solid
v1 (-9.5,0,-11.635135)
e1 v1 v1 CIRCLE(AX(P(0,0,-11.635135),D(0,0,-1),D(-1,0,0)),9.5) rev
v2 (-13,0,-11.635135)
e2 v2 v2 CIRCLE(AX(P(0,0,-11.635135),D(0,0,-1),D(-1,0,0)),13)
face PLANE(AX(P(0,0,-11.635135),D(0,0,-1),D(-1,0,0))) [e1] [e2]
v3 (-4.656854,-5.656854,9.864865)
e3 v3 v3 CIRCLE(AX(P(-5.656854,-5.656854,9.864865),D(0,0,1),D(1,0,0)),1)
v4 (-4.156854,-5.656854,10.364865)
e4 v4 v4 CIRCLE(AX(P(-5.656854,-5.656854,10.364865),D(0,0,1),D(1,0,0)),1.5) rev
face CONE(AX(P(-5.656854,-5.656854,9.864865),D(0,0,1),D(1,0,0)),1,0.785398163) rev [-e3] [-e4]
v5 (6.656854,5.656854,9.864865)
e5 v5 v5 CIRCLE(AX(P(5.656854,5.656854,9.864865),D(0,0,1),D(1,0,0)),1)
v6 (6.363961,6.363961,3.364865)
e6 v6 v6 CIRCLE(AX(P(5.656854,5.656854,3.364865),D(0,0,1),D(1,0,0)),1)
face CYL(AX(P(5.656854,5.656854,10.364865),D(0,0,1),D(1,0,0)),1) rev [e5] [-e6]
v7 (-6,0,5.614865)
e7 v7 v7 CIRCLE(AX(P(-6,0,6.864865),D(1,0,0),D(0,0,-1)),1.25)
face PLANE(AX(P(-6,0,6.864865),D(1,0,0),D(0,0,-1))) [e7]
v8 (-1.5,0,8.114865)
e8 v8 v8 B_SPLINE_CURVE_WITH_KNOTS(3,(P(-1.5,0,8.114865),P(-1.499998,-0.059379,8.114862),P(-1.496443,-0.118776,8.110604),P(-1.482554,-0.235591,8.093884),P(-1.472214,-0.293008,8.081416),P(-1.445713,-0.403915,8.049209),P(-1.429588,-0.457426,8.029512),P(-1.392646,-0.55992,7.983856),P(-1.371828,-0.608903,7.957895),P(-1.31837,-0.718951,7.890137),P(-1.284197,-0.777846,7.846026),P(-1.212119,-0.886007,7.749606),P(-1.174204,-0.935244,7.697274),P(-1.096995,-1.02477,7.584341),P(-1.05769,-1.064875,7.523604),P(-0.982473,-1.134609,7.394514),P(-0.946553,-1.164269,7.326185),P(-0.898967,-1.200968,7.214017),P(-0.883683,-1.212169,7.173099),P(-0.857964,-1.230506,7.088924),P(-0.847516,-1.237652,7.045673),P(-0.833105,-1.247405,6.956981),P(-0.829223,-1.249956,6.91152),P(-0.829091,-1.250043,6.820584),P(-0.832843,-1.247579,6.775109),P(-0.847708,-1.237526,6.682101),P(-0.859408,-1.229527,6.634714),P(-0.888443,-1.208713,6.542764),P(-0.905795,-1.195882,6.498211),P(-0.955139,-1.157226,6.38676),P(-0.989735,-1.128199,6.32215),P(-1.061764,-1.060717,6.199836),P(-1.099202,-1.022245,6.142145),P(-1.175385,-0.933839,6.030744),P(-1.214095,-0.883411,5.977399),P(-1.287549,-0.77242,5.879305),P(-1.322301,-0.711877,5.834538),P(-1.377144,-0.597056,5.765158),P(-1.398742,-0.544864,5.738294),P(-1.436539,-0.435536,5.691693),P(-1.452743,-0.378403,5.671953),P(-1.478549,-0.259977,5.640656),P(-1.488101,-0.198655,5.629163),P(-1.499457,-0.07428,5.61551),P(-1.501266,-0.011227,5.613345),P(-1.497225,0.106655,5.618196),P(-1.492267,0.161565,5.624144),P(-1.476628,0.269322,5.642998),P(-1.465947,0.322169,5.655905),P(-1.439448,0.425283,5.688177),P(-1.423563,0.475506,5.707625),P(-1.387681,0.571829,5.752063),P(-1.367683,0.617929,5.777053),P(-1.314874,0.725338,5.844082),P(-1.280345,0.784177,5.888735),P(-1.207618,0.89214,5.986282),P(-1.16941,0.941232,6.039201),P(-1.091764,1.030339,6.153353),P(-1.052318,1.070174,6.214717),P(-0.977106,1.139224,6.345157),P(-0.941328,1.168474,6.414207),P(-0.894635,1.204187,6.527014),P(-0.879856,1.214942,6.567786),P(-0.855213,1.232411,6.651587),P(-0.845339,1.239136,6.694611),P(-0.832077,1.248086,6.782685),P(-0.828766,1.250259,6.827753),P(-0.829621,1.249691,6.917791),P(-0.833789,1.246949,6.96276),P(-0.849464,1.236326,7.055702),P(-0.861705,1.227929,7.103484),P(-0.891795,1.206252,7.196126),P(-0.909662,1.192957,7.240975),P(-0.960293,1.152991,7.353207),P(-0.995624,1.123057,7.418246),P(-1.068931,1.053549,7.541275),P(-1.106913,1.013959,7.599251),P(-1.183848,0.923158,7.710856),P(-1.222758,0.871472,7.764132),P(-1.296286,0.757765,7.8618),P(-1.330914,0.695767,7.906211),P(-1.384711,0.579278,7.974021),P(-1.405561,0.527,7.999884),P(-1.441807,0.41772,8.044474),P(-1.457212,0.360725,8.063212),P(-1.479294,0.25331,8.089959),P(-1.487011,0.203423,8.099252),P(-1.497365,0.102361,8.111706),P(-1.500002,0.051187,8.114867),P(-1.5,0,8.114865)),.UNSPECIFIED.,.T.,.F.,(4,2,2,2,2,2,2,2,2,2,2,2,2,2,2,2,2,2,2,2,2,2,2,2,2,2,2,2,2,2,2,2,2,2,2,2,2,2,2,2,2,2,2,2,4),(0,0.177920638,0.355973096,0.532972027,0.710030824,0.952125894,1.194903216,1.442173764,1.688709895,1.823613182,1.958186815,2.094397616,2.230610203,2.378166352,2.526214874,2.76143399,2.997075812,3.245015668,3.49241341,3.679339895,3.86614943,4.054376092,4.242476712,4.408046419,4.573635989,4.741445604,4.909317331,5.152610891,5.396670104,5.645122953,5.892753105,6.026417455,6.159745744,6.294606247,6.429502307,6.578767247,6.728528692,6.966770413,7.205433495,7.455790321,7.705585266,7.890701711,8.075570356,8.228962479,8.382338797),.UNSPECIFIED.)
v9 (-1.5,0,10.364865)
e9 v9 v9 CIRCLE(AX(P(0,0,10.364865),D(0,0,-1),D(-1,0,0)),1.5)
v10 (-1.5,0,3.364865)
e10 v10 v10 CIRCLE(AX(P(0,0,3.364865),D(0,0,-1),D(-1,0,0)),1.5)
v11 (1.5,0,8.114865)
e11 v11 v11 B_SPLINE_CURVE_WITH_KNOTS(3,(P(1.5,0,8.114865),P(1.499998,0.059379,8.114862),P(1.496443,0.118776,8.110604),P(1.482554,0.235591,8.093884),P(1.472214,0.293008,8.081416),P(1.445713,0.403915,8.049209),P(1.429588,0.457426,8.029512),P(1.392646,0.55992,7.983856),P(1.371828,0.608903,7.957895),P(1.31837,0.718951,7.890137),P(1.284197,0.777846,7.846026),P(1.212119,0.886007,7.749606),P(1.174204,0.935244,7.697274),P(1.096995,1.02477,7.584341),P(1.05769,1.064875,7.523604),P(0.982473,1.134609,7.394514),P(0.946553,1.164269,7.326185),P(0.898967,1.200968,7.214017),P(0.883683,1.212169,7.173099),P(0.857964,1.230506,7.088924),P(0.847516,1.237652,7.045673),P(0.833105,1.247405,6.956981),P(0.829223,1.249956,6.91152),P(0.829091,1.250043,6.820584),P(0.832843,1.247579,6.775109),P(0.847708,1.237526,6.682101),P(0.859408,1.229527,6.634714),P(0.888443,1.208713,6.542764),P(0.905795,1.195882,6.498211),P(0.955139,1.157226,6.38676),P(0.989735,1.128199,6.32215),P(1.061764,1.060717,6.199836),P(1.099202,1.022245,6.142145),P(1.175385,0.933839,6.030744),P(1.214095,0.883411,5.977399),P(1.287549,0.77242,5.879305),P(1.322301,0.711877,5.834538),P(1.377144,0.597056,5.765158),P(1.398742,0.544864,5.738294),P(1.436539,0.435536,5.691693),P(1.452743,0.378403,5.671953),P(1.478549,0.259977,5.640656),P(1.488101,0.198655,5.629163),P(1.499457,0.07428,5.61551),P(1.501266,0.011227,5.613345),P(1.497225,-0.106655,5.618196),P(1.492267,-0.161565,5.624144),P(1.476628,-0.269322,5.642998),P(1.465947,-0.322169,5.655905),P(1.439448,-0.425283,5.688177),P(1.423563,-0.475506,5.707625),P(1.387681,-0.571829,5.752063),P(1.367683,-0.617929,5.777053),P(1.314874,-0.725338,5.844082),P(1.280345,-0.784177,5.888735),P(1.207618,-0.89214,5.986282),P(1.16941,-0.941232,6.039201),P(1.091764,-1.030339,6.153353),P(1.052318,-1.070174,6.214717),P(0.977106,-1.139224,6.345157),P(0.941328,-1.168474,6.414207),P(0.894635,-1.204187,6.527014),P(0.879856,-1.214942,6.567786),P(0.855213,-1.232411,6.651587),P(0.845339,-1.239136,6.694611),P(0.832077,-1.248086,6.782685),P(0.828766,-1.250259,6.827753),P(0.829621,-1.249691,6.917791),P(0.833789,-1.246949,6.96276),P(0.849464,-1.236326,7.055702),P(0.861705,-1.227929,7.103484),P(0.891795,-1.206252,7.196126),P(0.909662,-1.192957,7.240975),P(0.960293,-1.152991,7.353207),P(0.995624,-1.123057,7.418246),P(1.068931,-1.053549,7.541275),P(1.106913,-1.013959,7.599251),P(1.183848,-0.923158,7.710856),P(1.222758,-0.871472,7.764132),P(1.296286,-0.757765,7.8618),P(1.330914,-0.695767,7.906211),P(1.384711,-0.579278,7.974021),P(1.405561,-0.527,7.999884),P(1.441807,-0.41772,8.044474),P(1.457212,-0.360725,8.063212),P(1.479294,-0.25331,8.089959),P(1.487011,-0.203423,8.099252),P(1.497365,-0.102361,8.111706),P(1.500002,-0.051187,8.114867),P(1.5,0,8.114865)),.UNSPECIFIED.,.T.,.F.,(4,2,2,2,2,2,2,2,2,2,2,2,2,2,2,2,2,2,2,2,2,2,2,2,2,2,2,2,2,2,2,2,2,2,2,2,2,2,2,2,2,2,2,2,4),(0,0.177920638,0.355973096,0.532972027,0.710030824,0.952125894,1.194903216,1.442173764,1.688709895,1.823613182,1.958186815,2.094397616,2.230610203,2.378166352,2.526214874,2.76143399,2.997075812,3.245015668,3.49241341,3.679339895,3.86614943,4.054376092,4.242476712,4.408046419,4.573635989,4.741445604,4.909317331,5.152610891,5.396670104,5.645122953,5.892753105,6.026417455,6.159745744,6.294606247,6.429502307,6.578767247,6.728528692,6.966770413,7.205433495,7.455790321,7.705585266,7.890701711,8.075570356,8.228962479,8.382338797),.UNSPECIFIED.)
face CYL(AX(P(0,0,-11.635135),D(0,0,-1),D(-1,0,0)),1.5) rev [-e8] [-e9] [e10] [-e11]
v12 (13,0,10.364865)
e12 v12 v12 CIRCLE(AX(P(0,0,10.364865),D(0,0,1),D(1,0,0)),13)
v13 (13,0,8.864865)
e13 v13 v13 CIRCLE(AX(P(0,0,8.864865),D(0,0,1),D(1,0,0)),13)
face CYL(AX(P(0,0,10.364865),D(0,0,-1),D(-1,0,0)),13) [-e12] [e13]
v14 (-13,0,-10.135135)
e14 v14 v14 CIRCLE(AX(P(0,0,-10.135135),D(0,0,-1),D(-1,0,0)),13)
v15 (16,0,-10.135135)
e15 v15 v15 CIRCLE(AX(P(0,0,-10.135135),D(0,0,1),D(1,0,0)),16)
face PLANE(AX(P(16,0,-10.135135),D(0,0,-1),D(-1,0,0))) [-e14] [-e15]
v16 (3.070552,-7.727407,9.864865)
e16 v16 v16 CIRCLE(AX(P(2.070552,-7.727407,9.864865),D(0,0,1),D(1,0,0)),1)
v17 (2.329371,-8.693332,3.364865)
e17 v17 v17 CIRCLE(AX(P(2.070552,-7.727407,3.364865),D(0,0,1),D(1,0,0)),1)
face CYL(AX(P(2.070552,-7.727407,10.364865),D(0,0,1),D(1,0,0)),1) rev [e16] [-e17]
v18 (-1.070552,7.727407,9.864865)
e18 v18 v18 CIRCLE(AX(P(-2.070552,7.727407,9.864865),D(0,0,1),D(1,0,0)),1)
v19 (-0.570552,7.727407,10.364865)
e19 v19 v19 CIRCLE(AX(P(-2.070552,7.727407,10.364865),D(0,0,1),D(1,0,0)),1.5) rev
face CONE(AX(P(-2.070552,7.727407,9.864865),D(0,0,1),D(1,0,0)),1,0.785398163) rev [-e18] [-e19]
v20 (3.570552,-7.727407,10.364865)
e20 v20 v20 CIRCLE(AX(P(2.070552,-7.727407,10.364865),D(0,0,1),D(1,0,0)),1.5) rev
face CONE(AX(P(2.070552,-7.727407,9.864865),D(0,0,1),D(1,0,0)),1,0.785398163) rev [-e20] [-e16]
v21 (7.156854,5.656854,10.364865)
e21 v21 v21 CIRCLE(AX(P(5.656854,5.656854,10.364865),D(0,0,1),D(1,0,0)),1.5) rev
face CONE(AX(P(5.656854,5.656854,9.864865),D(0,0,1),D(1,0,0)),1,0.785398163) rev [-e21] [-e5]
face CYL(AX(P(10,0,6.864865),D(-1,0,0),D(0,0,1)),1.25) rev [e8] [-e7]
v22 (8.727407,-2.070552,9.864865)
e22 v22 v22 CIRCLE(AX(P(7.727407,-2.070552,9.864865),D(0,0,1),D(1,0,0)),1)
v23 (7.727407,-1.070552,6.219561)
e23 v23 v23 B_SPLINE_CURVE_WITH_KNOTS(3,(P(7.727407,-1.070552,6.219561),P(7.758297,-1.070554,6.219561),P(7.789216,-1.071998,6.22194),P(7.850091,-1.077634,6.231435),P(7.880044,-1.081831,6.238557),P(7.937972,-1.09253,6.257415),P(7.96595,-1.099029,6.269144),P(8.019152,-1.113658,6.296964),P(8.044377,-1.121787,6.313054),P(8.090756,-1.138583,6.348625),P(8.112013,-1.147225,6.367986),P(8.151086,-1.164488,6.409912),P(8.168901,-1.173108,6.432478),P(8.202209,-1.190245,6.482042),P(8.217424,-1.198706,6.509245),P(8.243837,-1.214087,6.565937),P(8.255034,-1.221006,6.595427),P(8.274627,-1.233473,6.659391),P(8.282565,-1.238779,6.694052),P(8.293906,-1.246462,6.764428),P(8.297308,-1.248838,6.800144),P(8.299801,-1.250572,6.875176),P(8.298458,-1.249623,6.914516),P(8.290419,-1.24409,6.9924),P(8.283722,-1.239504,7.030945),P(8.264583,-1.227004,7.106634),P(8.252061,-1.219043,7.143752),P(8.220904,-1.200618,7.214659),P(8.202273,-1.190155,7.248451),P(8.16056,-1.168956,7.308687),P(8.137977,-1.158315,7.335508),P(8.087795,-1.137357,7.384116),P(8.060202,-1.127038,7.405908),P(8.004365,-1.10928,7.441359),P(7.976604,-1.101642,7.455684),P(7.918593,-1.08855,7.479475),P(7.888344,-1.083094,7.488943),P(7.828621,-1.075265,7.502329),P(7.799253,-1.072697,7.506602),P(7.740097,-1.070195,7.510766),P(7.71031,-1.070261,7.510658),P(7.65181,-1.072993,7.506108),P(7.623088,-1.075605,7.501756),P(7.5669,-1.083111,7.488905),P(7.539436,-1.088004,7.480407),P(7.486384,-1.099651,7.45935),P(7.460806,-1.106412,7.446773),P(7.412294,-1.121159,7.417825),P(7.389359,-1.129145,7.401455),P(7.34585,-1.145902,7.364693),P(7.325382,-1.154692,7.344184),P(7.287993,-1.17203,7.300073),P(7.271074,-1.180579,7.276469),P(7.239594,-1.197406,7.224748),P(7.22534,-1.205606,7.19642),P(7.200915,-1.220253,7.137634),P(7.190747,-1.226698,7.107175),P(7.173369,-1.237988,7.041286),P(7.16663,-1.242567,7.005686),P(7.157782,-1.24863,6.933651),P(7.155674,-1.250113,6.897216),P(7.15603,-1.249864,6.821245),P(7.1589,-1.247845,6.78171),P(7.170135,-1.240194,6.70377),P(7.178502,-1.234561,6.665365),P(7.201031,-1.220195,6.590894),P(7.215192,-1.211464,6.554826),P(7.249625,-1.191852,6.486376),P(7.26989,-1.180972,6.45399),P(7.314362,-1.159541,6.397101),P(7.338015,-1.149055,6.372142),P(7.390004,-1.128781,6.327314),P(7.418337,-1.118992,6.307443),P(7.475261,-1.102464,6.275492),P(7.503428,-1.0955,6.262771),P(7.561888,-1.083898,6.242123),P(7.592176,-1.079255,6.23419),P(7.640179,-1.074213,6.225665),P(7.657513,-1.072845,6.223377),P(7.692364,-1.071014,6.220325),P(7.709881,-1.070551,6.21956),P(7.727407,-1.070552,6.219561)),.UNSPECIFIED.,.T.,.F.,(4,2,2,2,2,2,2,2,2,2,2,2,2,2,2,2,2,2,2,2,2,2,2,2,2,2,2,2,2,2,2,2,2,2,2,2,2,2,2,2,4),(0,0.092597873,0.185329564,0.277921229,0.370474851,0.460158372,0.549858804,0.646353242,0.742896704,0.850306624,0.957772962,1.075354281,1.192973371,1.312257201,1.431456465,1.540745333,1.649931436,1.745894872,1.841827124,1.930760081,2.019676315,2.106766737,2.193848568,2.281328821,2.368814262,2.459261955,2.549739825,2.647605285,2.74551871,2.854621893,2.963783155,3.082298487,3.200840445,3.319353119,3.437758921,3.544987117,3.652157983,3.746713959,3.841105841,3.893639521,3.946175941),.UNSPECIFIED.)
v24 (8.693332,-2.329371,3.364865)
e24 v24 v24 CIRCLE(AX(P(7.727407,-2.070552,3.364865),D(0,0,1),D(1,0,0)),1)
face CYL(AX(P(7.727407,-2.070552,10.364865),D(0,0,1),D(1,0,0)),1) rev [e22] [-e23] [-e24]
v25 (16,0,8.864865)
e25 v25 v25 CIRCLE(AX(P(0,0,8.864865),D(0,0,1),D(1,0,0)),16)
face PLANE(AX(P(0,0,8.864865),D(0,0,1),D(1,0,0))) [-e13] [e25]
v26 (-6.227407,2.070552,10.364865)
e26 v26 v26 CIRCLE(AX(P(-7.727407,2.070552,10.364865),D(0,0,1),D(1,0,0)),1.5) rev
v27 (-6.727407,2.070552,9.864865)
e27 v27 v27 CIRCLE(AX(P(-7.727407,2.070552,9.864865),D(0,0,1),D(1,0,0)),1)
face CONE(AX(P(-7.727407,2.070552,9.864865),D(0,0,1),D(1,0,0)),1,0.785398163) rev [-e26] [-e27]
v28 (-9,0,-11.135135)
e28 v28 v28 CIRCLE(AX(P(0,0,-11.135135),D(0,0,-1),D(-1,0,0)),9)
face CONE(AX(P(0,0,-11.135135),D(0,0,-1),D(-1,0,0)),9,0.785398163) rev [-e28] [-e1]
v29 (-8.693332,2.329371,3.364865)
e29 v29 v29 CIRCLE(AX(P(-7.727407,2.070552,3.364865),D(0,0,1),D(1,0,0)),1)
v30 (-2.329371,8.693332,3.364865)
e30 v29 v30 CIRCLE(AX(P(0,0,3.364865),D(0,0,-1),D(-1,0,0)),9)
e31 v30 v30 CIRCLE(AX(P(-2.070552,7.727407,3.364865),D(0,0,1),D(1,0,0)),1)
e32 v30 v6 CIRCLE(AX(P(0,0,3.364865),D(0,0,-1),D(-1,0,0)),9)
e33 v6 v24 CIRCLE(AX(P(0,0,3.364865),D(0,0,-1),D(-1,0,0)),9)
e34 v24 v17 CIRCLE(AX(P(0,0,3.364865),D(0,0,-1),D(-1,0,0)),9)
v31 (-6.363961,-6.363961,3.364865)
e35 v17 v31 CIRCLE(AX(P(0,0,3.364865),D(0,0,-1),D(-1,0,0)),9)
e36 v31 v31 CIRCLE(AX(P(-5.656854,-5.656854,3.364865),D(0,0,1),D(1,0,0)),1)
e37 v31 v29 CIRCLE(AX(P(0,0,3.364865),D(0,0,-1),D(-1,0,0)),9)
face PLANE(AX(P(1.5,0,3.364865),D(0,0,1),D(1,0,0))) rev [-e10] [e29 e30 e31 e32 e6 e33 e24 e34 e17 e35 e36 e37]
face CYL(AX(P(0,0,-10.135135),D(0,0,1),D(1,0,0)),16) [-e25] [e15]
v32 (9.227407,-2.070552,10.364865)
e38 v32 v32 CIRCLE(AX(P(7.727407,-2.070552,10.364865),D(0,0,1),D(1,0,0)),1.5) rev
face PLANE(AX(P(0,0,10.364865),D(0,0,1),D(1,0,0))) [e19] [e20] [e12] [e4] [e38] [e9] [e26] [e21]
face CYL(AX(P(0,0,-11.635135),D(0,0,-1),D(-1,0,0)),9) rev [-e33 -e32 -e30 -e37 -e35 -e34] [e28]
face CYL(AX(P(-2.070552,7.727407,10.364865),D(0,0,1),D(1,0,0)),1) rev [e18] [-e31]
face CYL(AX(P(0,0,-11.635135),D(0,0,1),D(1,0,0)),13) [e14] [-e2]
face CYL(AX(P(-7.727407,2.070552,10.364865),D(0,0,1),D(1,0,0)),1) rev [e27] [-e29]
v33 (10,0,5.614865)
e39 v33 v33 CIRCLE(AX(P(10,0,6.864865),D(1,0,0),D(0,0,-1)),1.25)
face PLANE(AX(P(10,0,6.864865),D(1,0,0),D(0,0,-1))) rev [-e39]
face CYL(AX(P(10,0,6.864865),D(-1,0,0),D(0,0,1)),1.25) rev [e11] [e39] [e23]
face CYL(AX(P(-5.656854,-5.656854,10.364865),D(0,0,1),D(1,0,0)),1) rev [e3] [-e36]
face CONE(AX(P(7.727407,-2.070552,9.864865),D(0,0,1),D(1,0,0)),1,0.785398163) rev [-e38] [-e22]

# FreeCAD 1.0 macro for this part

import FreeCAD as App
import Part
import Sketcher
Q = App.Units.Quantity


def edges_at(feature, points):
    """Names of the edges that pass closest to the given points."""
    edges = feature.Shape.Edges
    near = lambda p: min(range(len(edges)), key=lambda i: edges[i].distToShape(Part.Vertex(*p))[0])
    return sorted({f"Edge{near(p) + 1}" for p in points})


def add_polygon(sketch, points):
    """Adds a closed chain of lines whose ends are joined by coincident constraints."""
    first, n = sketch.GeometryCount, len(points)
    for a, b in zip(points, points[1:] + points[:1]):
        sketch.addGeometry(Part.LineSegment(App.Vector(*a, 0), App.Vector(*b, 0)), False)
    for i in range(n):
        sketch.addConstraint(Sketcher.Constraint("Coincident", first + i, 2, first + (i + 1) % n, 1))

doc = App.newDocument("Part")
body = doc.addObject("PartDesign::Body", "Body")

# Sketch on XZ plane
sketch1 = doc.addObject("Sketcher::SketchObject", "Sketch")
body.addObject(sketch1)
sketch1.AttachmentSupport = (doc.XZ_Plane, [""])
sketch1.MapMode = "FlatFace"
add_polygon(sketch1, [(0, -10.135135), (0, 8.864865), (16, 8.864865), (16, -10.135135)])  # lines 0-3
sketch1.addConstraint([
    Sketcher.Constraint("Vertical", 0),
    Sketcher.Constraint("Horizontal", 1),
    Sketcher.Constraint("Vertical", 2),
    Sketcher.Constraint("Horizontal", 3),
    Sketcher.Constraint("PointOnObject", 0, 2, -2),
    Sketcher.Constraint("DistanceX", 1, 1, 1, 2, Q("16 mm")),
    Sketcher.Constraint("DistanceY", 0, 1, 0, 2, Q("19 mm")),
    Sketcher.Constraint("DistanceY", -1, 1, 0, 2, Q("8.864865 mm")),
])
revolution = doc.addObject("PartDesign::Revolution", "Revolution")
body.addObject(revolution)
revolution.Profile = sketch1
revolution.ReferenceAxis = (sketch1, ["V_Axis"])
revolution.Angle = 360

# Sketch on XY plane
sketch2 = doc.addObject("Sketcher::SketchObject", "Sketch001")
body.addObject(sketch2)
sketch2.AttachmentSupport = (doc.XY_Plane, [""])
sketch2.MapMode = "FlatFace"
sketch2.AttachmentOffset = App.Placement(App.Vector(0, 0, 8.864865), App.Rotation())
sketch2.addGeometry(Part.Circle(App.Vector(0, 0, 0), App.Vector(0, 0, 1), 13), False)
sketch2.addConstraint([
    Sketcher.Constraint("Coincident", 0, 3, -1, 1),
    Sketcher.Constraint("Diameter", 0, Q("26 mm")),
])
pad1 = doc.addObject("PartDesign::Pad", "Pad")
body.addObject(pad1)
pad1.Profile = sketch2
pad1.Length = 1.5

# Sketch on XY plane
sketch3 = doc.addObject("Sketcher::SketchObject", "Sketch002")
body.addObject(sketch3)
sketch3.AttachmentSupport = (doc.XY_Plane, [""])
sketch3.MapMode = "FlatFace"
sketch3.AttachmentOffset = App.Placement(App.Vector(0, 0, -11.635135), App.Rotation())
sketch3.addGeometry(Part.Circle(App.Vector(0, 0, 0), App.Vector(0, 0, 1), 13), False)
sketch3.addConstraint([
    Sketcher.Constraint("Coincident", 0, 3, -1, 1),
    Sketcher.Constraint("Diameter", 0, Q("26 mm")),
])
pad2 = doc.addObject("PartDesign::Pad", "Pad001")
body.addObject(pad2)
pad2.Profile = sketch3
pad2.Length = 1.5

# Sketch on XY plane
sketch4 = doc.addObject("Sketcher::SketchObject", "Sketch003")
body.addObject(sketch4)
sketch4.AttachmentSupport = (doc.XY_Plane, [""])
sketch4.MapMode = "FlatFace"
sketch4.AttachmentOffset = App.Placement(App.Vector(0, 0, -11.635135), App.Rotation())
sketch4.addGeometry(Part.Circle(App.Vector(0, 0, 0), App.Vector(0, 0, 1), 1.5), False)
sketch4.addConstraint([
    Sketcher.Constraint("Coincident", 0, 3, -1, 1),
    Sketcher.Constraint("Diameter", 0, Q("3 mm")),
])
doc.recompute()
hole = doc.addObject("PartDesign::Hole", "Hole")
body.addObject(hole)
hole.Profile = sketch4
hole.ThreadType = "None"
hole.Diameter = 3
hole.DepthType = "ThroughAll"
hole.HoleCutType = "Counterbore"
hole.HoleCutDiameter = 18
hole.HoleCutDepth = 15
hole.Reversed = True

# Sketch on XY plane
sketch5 = doc.addObject("Sketcher::SketchObject", "Sketch004")
body.addObject(sketch5)
sketch5.AttachmentSupport = (doc.XY_Plane, [""])
sketch5.MapMode = "FlatFace"
sketch5.AttachmentOffset = App.Placement(App.Vector(0, 0, 10.364865), App.Rotation())
sketch5.addGeometry([
    Part.Circle(App.Vector(5.656854, 5.656854, 0), App.Vector(0, 0, 1), 1),  # 0
    Part.Circle(App.Vector(7.727407, -2.070552, 0), App.Vector(0, 0, 1), 1),  # 1
    Part.Circle(App.Vector(2.070552, -7.727407, 0), App.Vector(0, 0, 1), 1),  # 2
    Part.Circle(App.Vector(-5.656854, -5.656854, 0), App.Vector(0, 0, 1), 1),  # 3
    Part.Circle(App.Vector(-7.727407, 2.070552, 0), App.Vector(0, 0, 1), 1),  # 4
    Part.Circle(App.Vector(-2.070552, 7.727407, 0), App.Vector(0, 0, 1), 1),  # 5
], False)
sketch5.addConstraint([
    Sketcher.Constraint("Equal", 0, 1),
    Sketcher.Constraint("Equal", 1, 2),
    Sketcher.Constraint("Equal", 2, 3),
    Sketcher.Constraint("Equal", 3, 4),
    Sketcher.Constraint("Equal", 4, 5),
    Sketcher.Constraint("Symmetric", 0, 3, 3, 3, -1, 1),
    Sketcher.Constraint("Symmetric", 1, 3, 4, 3, -1, 1),
    Sketcher.Constraint("Symmetric", 2, 3, 5, 3, -1, 1),
    Sketcher.Constraint("Diameter", 0, Q("2 mm")),
    Sketcher.Constraint("DistanceX", 2, 3, 0, 3, Q("3.586302 mm")),
    Sketcher.Constraint("DistanceY", 3, 3, 1, 3, Q("3.586302 mm")),
    Sketcher.Constraint("DistanceY", 2, 3, 0, 3, Q("13.384261 mm")),
    Sketcher.Constraint("DistanceX", 3, 3, 1, 3, Q("13.384261 mm")),
    Sketcher.Constraint("DistanceX", 3, 3, 0, 3, Q("11.313708 mm")),
    Sketcher.Constraint("DistanceY", 3, 3, 0, 3, Q("11.313708 mm")),
])
doc.recompute()
hole2 = doc.addObject("PartDesign::Hole", "Hole001")
body.addObject(hole2)
hole2.Profile = sketch5
hole2.ThreadType = "None"
hole2.Diameter = 2
hole2.DepthType = "ThroughAll"

# Sketch on YZ plane
sketch6 = doc.addObject("Sketcher::SketchObject", "Sketch005")
body.addObject(sketch6)
sketch6.AttachmentSupport = (doc.YZ_Plane, [""])
sketch6.MapMode = "FlatFace"
sketch6.addGeometry(Part.Circle(App.Vector(0, 6.864865, 0), App.Vector(0, 0, 1), 1.25), False)
sketch6.addConstraint([
    Sketcher.Constraint("PointOnObject", 0, 3, -2),
    Sketcher.Constraint("Diameter", 0, Q("2.5 mm")),
    Sketcher.Constraint("DistanceY", -1, 1, 0, 3, Q("6.864865 mm")),
])
pocket1 = doc.addObject("PartDesign::Pocket", "Pocket")
body.addObject(pocket1)
pocket1.Profile = sketch6
pocket1.Type = "TwoLengths"
pocket1.Length = 10
pocket1.Length2 = 6
pocket1.Reversed = True
doc.recompute()

chamfer = doc.addObject("PartDesign::Chamfer", "Chamfer")
body.addObject(chamfer)
chamfer.Base = (pocket1, edges_at(pocket1, [
    (9, 0, -11.635),
    (-1.071, 7.727, 10.365),
    (-6.727, 2.071, 10.365),
    (-4.657, -5.657, 10.365),
    (3.071, -7.727, 10.365),
    (8.727, -2.071, 10.365),
    (6.657, 5.657, 10.365),
]))
chamfer.Size = 0.5

doc.recompute()
